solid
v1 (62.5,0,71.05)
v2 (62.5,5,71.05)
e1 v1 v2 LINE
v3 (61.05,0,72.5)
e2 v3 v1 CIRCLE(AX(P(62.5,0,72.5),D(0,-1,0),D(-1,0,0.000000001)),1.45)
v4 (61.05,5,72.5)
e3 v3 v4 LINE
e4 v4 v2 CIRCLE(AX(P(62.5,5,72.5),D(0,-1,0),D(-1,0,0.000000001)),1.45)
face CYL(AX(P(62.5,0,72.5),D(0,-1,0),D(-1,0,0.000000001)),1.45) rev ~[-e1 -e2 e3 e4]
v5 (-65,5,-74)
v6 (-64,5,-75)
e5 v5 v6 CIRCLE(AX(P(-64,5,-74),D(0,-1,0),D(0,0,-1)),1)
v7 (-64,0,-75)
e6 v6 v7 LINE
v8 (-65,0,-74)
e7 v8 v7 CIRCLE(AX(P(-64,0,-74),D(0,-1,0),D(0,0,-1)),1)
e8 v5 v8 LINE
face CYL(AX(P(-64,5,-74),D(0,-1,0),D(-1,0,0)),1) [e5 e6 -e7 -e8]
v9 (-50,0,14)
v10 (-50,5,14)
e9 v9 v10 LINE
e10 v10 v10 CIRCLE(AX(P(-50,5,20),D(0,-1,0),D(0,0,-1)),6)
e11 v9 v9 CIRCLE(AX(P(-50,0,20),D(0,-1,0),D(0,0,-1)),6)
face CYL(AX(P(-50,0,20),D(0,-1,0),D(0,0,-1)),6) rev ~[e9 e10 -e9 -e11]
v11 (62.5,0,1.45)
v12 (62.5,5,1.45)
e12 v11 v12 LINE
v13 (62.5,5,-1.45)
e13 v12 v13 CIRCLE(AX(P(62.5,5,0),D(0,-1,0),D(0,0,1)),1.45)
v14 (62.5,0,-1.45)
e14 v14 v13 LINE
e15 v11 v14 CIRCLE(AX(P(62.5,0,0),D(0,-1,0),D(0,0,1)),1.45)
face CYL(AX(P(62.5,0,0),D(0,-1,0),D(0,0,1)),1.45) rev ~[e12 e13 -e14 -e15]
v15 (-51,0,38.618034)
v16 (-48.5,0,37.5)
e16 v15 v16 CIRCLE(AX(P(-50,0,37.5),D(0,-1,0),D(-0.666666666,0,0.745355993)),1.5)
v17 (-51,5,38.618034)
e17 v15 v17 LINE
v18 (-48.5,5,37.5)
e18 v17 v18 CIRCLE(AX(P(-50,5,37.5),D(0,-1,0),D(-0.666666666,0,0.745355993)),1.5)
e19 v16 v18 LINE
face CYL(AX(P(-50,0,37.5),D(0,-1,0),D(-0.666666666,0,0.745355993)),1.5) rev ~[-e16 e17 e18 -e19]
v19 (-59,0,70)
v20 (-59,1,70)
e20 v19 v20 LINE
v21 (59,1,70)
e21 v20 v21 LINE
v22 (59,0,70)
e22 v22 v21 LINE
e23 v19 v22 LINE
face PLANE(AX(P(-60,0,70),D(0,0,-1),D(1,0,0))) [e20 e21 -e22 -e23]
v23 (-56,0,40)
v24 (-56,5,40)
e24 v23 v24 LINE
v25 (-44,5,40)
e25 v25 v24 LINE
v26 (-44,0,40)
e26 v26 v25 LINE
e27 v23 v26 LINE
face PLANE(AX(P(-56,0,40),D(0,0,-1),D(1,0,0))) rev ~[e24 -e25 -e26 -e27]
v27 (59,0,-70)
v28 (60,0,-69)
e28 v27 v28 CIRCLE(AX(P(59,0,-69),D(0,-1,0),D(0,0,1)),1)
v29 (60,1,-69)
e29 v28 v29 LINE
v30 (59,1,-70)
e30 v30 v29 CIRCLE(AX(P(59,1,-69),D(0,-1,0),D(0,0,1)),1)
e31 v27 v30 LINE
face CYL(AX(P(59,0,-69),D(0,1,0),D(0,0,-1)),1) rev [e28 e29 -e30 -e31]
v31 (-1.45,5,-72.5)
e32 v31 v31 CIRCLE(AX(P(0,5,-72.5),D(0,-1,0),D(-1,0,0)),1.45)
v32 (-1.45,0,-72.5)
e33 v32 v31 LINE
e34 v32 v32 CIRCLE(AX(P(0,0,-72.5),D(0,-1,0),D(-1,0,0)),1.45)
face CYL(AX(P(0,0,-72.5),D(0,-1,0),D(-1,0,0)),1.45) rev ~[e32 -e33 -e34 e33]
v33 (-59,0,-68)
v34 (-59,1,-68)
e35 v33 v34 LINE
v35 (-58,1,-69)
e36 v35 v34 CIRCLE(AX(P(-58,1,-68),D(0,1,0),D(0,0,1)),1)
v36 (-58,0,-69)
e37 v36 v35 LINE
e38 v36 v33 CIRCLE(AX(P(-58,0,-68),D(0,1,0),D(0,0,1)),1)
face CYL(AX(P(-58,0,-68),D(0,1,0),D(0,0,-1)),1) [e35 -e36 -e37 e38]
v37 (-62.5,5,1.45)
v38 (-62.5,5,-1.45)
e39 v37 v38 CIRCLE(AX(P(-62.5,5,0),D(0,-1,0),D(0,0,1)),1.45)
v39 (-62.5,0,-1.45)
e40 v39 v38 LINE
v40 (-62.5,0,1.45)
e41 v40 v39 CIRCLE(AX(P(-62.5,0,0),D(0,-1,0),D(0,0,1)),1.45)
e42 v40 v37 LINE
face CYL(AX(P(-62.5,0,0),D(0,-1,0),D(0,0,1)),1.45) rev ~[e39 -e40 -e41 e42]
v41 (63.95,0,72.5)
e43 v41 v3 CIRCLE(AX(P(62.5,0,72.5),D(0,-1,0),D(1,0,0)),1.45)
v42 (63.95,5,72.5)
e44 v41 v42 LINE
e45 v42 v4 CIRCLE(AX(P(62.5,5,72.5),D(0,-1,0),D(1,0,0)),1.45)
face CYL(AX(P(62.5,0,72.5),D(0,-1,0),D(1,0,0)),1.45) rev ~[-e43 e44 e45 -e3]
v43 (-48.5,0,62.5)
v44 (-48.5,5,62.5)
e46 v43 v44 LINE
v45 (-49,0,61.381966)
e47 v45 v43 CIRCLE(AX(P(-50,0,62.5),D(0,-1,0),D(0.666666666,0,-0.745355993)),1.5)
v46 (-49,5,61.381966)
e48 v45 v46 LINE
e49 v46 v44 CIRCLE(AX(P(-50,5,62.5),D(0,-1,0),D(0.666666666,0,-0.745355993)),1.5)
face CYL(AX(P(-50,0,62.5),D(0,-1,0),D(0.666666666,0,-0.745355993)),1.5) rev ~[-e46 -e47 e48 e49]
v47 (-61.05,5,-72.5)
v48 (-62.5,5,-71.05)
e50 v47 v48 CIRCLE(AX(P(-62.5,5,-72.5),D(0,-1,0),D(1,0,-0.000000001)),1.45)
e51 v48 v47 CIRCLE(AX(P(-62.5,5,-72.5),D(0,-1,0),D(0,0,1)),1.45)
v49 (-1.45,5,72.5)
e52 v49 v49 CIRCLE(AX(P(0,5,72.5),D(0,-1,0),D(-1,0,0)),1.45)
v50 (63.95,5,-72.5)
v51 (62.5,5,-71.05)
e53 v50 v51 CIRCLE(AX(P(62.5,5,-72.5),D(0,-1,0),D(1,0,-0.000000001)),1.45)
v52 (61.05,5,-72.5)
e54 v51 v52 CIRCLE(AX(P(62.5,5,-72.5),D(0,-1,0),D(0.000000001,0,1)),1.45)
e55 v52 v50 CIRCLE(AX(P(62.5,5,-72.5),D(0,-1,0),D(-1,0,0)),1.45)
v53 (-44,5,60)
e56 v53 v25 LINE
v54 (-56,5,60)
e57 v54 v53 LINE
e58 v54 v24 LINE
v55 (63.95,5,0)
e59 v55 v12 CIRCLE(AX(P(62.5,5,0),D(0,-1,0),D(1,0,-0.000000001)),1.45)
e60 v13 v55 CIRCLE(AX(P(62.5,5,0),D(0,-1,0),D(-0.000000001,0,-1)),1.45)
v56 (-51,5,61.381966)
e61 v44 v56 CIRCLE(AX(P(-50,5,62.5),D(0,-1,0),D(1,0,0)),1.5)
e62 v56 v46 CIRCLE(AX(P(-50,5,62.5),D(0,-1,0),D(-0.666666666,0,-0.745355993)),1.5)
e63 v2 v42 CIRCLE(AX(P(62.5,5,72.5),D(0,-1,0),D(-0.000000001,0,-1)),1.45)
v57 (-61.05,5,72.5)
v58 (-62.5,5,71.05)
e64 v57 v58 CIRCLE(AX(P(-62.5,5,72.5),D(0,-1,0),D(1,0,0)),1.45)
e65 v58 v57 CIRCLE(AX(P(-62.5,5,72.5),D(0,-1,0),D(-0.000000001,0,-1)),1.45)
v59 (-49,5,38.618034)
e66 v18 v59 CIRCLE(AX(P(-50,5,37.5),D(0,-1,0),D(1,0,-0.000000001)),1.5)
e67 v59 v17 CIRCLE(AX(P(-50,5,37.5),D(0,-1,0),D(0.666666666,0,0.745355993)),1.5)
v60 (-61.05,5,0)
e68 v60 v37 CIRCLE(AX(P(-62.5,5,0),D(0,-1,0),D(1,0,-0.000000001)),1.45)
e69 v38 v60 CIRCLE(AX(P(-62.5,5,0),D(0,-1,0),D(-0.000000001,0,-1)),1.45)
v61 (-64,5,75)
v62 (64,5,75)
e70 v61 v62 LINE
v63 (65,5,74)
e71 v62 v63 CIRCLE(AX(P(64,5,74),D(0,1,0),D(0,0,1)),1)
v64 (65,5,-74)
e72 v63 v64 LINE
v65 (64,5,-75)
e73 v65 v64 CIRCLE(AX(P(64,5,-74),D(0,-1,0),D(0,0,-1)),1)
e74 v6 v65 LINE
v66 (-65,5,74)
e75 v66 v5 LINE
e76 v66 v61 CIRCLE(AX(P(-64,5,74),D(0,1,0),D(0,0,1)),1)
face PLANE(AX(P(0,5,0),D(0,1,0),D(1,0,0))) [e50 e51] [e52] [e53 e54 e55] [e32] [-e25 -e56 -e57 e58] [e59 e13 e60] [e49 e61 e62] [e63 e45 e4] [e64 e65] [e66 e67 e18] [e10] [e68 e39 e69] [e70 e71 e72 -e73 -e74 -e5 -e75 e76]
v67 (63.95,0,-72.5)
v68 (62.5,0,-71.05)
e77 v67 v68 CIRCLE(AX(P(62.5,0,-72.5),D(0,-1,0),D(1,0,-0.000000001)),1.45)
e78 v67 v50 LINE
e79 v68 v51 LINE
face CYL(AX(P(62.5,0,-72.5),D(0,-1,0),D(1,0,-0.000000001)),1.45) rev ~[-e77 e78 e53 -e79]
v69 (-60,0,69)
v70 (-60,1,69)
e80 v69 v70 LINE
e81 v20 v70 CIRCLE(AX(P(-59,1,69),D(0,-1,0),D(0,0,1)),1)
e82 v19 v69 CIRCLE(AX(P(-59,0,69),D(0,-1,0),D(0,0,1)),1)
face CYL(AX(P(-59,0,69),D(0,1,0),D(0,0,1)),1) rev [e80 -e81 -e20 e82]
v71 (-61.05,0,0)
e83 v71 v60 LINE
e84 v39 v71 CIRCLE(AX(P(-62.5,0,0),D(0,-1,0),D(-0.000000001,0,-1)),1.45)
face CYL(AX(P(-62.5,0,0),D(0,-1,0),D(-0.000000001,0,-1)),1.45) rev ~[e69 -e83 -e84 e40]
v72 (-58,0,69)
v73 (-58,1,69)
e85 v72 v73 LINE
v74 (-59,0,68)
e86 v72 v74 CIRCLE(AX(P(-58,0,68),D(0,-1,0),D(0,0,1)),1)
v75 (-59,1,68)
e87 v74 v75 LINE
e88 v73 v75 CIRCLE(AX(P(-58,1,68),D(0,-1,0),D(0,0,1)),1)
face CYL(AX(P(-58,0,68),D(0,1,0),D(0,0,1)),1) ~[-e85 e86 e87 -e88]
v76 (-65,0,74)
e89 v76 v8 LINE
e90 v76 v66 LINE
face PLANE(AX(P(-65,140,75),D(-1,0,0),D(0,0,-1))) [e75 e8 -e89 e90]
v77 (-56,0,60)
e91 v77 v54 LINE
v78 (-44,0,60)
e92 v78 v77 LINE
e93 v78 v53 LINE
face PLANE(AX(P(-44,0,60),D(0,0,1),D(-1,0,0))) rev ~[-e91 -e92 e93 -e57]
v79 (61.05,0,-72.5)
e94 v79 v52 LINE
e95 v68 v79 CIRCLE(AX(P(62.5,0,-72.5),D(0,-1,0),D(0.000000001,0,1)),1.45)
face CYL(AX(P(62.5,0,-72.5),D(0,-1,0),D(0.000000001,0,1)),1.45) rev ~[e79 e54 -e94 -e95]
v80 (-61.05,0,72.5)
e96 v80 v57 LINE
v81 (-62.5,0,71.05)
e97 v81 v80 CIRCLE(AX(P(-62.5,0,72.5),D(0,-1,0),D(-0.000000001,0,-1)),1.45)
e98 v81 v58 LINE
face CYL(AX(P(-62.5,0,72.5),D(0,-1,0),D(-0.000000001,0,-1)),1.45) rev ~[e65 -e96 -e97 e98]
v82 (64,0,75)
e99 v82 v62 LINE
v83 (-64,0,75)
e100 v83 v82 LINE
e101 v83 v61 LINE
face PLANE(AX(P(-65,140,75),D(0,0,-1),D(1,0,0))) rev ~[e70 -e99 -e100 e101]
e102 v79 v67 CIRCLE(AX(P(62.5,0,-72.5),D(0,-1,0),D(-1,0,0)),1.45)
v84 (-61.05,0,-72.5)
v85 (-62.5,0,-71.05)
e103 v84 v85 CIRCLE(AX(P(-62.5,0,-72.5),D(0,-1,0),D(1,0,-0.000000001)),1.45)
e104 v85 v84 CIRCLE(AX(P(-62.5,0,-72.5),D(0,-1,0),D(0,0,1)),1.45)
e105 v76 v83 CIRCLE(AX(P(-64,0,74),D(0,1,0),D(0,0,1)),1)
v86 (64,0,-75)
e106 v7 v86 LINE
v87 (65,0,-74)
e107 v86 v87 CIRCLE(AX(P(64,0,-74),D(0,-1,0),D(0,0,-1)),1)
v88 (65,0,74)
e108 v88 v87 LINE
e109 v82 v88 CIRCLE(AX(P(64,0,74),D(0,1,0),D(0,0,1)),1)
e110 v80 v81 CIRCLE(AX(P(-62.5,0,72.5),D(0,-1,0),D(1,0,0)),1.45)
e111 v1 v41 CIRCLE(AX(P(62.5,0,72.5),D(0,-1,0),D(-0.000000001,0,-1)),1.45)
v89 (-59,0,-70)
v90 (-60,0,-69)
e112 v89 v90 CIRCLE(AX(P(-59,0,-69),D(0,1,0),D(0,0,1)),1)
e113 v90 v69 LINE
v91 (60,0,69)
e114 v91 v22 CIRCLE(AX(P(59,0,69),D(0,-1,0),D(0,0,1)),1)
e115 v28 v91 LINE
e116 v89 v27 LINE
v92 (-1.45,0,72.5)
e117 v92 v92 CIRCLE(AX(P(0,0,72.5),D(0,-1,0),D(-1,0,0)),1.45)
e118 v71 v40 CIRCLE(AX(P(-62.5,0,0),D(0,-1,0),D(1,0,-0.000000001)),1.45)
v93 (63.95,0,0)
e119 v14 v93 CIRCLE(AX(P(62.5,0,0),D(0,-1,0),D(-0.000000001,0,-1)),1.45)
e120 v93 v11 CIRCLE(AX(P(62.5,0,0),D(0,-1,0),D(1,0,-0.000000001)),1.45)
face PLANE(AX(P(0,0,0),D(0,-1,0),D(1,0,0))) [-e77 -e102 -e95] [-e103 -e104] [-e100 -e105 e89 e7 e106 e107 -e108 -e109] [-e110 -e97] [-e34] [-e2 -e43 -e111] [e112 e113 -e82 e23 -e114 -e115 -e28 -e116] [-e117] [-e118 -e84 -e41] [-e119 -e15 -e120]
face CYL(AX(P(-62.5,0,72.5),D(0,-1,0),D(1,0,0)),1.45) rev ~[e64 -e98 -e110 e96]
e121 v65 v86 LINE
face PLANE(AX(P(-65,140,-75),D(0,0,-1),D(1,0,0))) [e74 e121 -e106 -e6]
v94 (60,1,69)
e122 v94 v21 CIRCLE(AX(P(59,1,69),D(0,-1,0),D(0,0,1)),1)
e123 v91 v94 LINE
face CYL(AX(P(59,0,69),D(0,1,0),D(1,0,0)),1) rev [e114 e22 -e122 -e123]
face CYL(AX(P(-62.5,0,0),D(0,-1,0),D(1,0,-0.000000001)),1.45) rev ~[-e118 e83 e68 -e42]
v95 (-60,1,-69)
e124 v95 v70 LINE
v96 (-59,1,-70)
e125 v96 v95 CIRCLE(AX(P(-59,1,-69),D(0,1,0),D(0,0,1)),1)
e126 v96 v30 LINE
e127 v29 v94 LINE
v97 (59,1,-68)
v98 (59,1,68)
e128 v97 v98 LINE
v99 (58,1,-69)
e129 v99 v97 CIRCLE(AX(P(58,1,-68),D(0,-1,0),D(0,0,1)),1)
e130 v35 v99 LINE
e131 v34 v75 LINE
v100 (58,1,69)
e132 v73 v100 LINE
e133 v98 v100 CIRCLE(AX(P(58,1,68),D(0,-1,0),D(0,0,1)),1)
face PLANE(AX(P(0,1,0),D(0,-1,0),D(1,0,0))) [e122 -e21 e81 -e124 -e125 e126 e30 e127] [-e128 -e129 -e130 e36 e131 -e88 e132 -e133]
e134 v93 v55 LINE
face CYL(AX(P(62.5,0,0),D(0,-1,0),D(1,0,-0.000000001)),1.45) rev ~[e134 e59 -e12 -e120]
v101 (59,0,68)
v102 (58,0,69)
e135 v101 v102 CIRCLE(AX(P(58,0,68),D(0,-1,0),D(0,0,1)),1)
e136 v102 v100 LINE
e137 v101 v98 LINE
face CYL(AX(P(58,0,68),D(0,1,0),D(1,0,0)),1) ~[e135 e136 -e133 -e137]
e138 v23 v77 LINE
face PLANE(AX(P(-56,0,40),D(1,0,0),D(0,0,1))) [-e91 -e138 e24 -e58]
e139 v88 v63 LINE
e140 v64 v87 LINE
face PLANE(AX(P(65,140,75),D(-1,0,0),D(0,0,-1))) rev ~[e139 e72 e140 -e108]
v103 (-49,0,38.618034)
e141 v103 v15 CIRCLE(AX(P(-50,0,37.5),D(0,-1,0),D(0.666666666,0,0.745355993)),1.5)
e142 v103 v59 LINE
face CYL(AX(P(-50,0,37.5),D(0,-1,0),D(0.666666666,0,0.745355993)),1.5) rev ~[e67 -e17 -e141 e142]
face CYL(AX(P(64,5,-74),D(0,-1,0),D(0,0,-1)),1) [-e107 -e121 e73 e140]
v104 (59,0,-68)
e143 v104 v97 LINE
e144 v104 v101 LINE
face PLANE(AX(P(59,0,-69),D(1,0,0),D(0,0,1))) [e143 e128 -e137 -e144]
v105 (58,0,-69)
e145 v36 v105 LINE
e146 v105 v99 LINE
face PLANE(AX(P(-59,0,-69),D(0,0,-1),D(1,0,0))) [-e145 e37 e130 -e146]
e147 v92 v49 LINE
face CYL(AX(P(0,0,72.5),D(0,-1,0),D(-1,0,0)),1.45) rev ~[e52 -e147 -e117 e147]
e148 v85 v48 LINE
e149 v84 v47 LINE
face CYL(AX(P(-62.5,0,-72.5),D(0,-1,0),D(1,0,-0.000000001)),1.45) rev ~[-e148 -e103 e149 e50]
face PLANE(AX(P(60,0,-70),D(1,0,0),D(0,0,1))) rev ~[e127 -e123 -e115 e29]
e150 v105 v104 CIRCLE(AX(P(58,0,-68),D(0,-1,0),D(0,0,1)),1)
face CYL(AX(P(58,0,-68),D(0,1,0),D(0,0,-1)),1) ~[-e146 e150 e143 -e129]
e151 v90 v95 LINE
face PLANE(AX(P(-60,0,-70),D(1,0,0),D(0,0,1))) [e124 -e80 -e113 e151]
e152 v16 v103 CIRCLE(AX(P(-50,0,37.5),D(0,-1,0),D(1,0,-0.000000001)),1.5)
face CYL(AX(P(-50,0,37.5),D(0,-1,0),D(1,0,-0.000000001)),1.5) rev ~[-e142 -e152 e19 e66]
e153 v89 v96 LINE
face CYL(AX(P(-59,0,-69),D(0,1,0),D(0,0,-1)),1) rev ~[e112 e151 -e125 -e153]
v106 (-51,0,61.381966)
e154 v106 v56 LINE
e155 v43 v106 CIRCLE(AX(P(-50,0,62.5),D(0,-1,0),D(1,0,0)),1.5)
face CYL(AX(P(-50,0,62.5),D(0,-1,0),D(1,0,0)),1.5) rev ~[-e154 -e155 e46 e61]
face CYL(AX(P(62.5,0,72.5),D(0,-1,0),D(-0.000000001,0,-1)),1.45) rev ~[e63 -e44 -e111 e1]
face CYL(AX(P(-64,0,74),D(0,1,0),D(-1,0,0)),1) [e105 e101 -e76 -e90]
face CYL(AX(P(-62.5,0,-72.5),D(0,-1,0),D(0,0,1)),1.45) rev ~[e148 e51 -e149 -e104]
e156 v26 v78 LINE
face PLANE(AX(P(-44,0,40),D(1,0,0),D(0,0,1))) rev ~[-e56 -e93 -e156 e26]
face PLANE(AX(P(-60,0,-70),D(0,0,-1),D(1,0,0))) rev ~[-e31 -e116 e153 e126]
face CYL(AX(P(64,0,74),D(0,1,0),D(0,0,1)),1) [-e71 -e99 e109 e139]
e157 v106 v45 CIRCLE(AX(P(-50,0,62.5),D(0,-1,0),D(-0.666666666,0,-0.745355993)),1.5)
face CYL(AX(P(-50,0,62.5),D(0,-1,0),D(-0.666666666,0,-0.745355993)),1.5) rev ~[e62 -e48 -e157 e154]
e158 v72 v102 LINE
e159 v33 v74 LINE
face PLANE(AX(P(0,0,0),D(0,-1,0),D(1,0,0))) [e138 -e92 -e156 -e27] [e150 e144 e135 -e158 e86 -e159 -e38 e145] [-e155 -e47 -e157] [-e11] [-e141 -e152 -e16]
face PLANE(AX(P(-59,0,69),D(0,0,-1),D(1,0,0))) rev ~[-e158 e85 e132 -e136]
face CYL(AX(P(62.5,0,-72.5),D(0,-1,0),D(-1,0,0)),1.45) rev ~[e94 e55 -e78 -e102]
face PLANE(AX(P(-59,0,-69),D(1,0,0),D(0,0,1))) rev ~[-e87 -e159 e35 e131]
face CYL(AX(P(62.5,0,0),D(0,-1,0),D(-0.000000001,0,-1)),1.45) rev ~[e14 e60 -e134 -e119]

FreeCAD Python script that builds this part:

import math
import FreeCAD as App
import Part
import Sketcher

V = App.Vector
Q = App.Units.Quantity


def edges_at(feature, points):
    """Names of the edges that pass closest to the given points."""
    edges = feature.Shape.Edges
    near = lambda p: min(range(len(edges)), key=lambda i: edges[i].distToShape(Part.Vertex(*p))[0])
    return sorted({f"Edge{near(p) + 1}" for p in points})

doc = App.newDocument("Part")
params = doc.addObject("Spreadsheet::Sheet", "Params")
for row, (alias, value) in enumerate([
    ("sketch1_width", "130 mm"),
    ("sketch1_width2", "120 mm"),
    ("sketch1_height", "150 mm"),
    ("sketch1_height2", "140 mm"),
    ("pad1_length", "140 mm"),
    ("sketch2_width", "130 mm"),
    ("sketch2_height", "150 mm"),
    ("pad2_length", "5 mm"),
    ("sketch3_diameter", "2.9 mm"),
    ("pocket1_length", "12 mm"),
    ("sketch4_width", "130 mm"),
    ("sketch4_height", "150 mm"),
    ("pocket2_length", "140 mm"),
    ("sketch5_width", "120 mm"),
    ("sketch5_height", "140 mm"),
    ("pad3_length", "5 mm"),
    ("fillet_radius", "1 mm"),
    ("sketch6_width", "120 mm"),
    ("sketch6_width2", "118 mm"),
    ("sketch6_height", "140 mm"),
    ("sketch6_height2", "138 mm"),
    ("pocket3_length", "1 mm"),
    ("fillet2_radius", "1 mm"),
    ("sketch7_radius", "1.5 mm"),
    ("sketch7_width", "12 mm"),
    ("sketch7_height", "20 mm"),
    ("pocket4_length", "10 mm"),
    ("sketch8_diameter", "12 mm"),
    ("pocket5_length", "10 mm"),
], start=1):
    params.set(f"A{row}", alias)
    params.set(f"B{row}", "=" + value)
    params.setAlias(f"B{row}", alias)

body = doc.addObject("PartDesign::Body", "Body")

sketch1 = body.newObject("Sketcher::SketchObject", "Sketch")
sketch1.AttachmentSupport = (doc.getObject("XZ_Plane"), [""])
sketch1.MapMode = "FlatFace"
sketch1.addGeometry(Part.LineSegment(V(-65, -75, 0), V(-65, 75, 0)), False)
sketch1.addGeometry(Part.LineSegment(V(-65, 75, 0), V(65, 75, 0)), False)
sketch1.addGeometry(Part.LineSegment(V(65, 75, 0), V(65, -75, 0)), False)
sketch1.addGeometry(Part.LineSegment(V(65, -75, 0), V(-65, -75, 0)), False)
sketch1.addGeometry(Part.LineSegment(V(60, 70, 0), V(-60, 70, 0)), False)
sketch1.addGeometry(Part.LineSegment(V(-60, 70, 0), V(-60, -70, 0)), False)
sketch1.addGeometry(Part.LineSegment(V(-60, -70, 0), V(60, -70, 0)), False)
sketch1.addGeometry(Part.LineSegment(V(60, -70, 0), V(60, 70, 0)), False)
sketch1.addConstraint(Sketcher.Constraint("Coincident", 0, 2, 1, 1))
sketch1.addConstraint(Sketcher.Constraint("Coincident", 1, 2, 2, 1))
sketch1.addConstraint(Sketcher.Constraint("Coincident", 2, 2, 3, 1))
sketch1.addConstraint(Sketcher.Constraint("Coincident", 3, 2, 0, 1))
sketch1.addConstraint(Sketcher.Constraint("Coincident", 4, 2, 5, 1))
sketch1.addConstraint(Sketcher.Constraint("Coincident", 5, 2, 6, 1))
sketch1.addConstraint(Sketcher.Constraint("Coincident", 6, 2, 7, 1))
sketch1.addConstraint(Sketcher.Constraint("Coincident", 7, 2, 4, 1))
sketch1.addConstraint(Sketcher.Constraint("Vertical", 0))
sketch1.addConstraint(Sketcher.Constraint("Horizontal", 1))
sketch1.addConstraint(Sketcher.Constraint("Vertical", 2))
sketch1.addConstraint(Sketcher.Constraint("Horizontal", 3))
sketch1.addConstraint(Sketcher.Constraint("Horizontal", 4))
sketch1.addConstraint(Sketcher.Constraint("Vertical", 5))
sketch1.addConstraint(Sketcher.Constraint("Horizontal", 6))
sketch1.addConstraint(Sketcher.Constraint("Vertical", 7))
sketch1.addConstraint(Sketcher.Constraint("Symmetric", 0, 2, 2, 2, -1, 1))
sketch1.addConstraint(Sketcher.Constraint("Symmetric", 4, 2, 6, 2, -1, 1))
sketch1.addConstraint(Sketcher.Constraint("DistanceX", 1, 1, 1, 2, Q("130 mm")))
sketch1.addConstraint(Sketcher.Constraint("DistanceX", 4, 2, 4, 1, Q("120 mm")))
sketch1.addConstraint(Sketcher.Constraint("DistanceY", 0, 1, 0, 2, Q("150 mm")))
sketch1.addConstraint(Sketcher.Constraint("DistanceY", 5, 2, 5, 1, Q("140 mm")))
sketch1.setExpression("Constraints[18]", "Params.sketch1_width")
sketch1.setExpression("Constraints[19]", "Params.sketch1_width2")
sketch1.setExpression("Constraints[20]", "Params.sketch1_height")
sketch1.setExpression("Constraints[21]", "Params.sketch1_height2")
pad1 = body.newObject("PartDesign::Pad", "Pad")
pad1.Profile = sketch1
pad1.setExpression("Length", "Params.pad1_length")
pad1.Reversed = True

sketch2 = body.newObject("Sketcher::SketchObject", "Sketch001")
sketch2.AttachmentSupport = (doc.getObject("XZ_Plane"), [""])
sketch2.MapMode = "FlatFace"
sketch2.AttachmentOffset = App.Placement(V(0, 0, -140), App.Rotation())
sketch2.addGeometry(Part.LineSegment(V(-65, -75, 0), V(-65, 75, 0)), False)
sketch2.addGeometry(Part.LineSegment(V(-65, 75, 0), V(65, 75, 0)), False)
sketch2.addGeometry(Part.LineSegment(V(65, 75, 0), V(65, -75, 0)), False)
sketch2.addGeometry(Part.LineSegment(V(65, -75, 0), V(-65, -75, 0)), False)
sketch2.addConstraint(Sketcher.Constraint("Coincident", 0, 2, 1, 1))
sketch2.addConstraint(Sketcher.Constraint("Coincident", 1, 2, 2, 1))
sketch2.addConstraint(Sketcher.Constraint("Coincident", 2, 2, 3, 1))
sketch2.addConstraint(Sketcher.Constraint("Coincident", 3, 2, 0, 1))
sketch2.addConstraint(Sketcher.Constraint("Vertical", 0))
sketch2.addConstraint(Sketcher.Constraint("Horizontal", 1))
sketch2.addConstraint(Sketcher.Constraint("Vertical", 2))
sketch2.addConstraint(Sketcher.Constraint("Horizontal", 3))
sketch2.addConstraint(Sketcher.Constraint("Symmetric", 0, 2, 2, 2, -1, 1))
sketch2.addConstraint(Sketcher.Constraint("DistanceX", 1, 1, 1, 2, Q("130 mm")))
sketch2.addConstraint(Sketcher.Constraint("DistanceY", 0, 1, 0, 2, Q("150 mm")))
sketch2.setExpression("Constraints[9]", "Params.sketch2_width")
sketch2.setExpression("Constraints[10]", "Params.sketch2_height")
pad2 = body.newObject("PartDesign::Pad", "Pad001")
pad2.Profile = sketch2
pad2.setExpression("Length", "Params.pad2_length")
pad2.Reversed = True

sketch3 = body.newObject("Sketcher::SketchObject", "Sketch002")
sketch3.AttachmentSupport = (doc.getObject("XZ_Plane"), [""])
sketch3.MapMode = "FlatFace"
sketch3.addGeometry(Part.Circle(V(0, -72.5, 0), V(0, 0, 1), 1.4), False)
sketch3.addGeometry(Part.ArcOfCircle(Part.Circle(V(62.5, -72.5, 0), V(0, 0, 1), 1.4), math.radians(0), math.radians(90)), False)
sketch3.addGeometry(Part.ArcOfCircle(Part.Circle(V(62.5, -72.5, 0), V(0, 0, 1), 1.4), math.radians(90), math.radians(180)), False)
sketch3.addGeometry(Part.ArcOfCircle(Part.Circle(V(62.5, -72.5, 0), V(0, 0, 1), 1.4), math.radians(180), math.radians(360)), False)
sketch3.addGeometry(Part.ArcOfCircle(Part.Circle(V(62.5, 0, 0), V(0, 0, 1), 1.4), math.radians(0), math.radians(90)), False)
sketch3.addGeometry(Part.ArcOfCircle(Part.Circle(V(62.5, 0, 0), V(0, 0, 1), 1.4), math.radians(90), math.radians(270)), False)
sketch3.addGeometry(Part.ArcOfCircle(Part.Circle(V(62.5, 0, 0), V(0, 0, 1), 1.4), math.radians(-90), math.radians(0)), False)
sketch3.addGeometry(Part.ArcOfCircle(Part.Circle(V(62.5, 72.5, 0), V(0, 0, 1), 1.4), math.radians(0), math.radians(180)), False)
sketch3.addGeometry(Part.ArcOfCircle(Part.Circle(V(62.5, 72.5, 0), V(0, 0, 1), 1.4), math.radians(180), math.radians(270)), False)
sketch3.addGeometry(Part.ArcOfCircle(Part.Circle(V(62.5, 72.5, 0), V(0, 0, 1), 1.4), math.radians(-90), math.radians(0)), False)
sketch3.addGeometry(Part.Circle(V(0, 72.5, 0), V(0, 0, 1), 1.4), False)
sketch3.addGeometry(Part.ArcOfCircle(Part.Circle(V(-62.5, 72.5, 0), V(0, 0, 1), 1.4), math.radians(0), math.radians(270)), False)
sketch3.addGeometry(Part.ArcOfCircle(Part.Circle(V(-62.5, 72.5, 0), V(0, 0, 1), 1.4), math.radians(-90), math.radians(0)), False)
sketch3.addGeometry(Part.ArcOfCircle(Part.Circle(V(-62.5, 0, 0), V(0, 0, 1), 1.4), math.radians(0), math.radians(90)), False)
sketch3.addGeometry(Part.ArcOfCircle(Part.Circle(V(-62.5, 0, 0), V(0, 0, 1), 1.4), math.radians(90), math.radians(270)), False)
sketch3.addGeometry(Part.ArcOfCircle(Part.Circle(V(-62.5, 0, 0), V(0, 0, 1), 1.4), math.radians(-90), math.radians(0)), False)
sketch3.addGeometry(Part.ArcOfCircle(Part.Circle(V(-62.5, -72.5, 0), V(0, 0, 1), 1.4), math.radians(0), math.radians(90)), False)
sketch3.addGeometry(Part.ArcOfCircle(Part.Circle(V(-62.5, -72.5, 0), V(0, 0, 1), 1.4), math.radians(90), math.radians(360)), False)
sketch3.addConstraint(Sketcher.Constraint("Tangent", 1, 2, 2, 1))
sketch3.addConstraint(Sketcher.Constraint("Tangent", 2, 2, 3, 1))
sketch3.addConstraint(Sketcher.Constraint("Tangent", 3, 2, 1, 1))
sketch3.addConstraint(Sketcher.Constraint("Tangent", 4, 2, 5, 1))
sketch3.addConstraint(Sketcher.Constraint("Tangent", 5, 2, 6, 1))
sketch3.addConstraint(Sketcher.Constraint("Tangent", 6, 2, 4, 1))
sketch3.addConstraint(Sketcher.Constraint("Tangent", 7, 2, 8, 1))
sketch3.addConstraint(Sketcher.Constraint("Tangent", 8, 2, 9, 1))
sketch3.addConstraint(Sketcher.Constraint("Tangent", 9, 2, 7, 1))
sketch3.addConstraint(Sketcher.Constraint("Tangent", 11, 1, 12, 2))
sketch3.addConstraint(Sketcher.Constraint("Coincident", 12, 1, 11, 2))
sketch3.addConstraint(Sketcher.Constraint("Tangent", 13, 2, 14, 1))
sketch3.addConstraint(Sketcher.Constraint("Tangent", 14, 2, 15, 1))
sketch3.addConstraint(Sketcher.Constraint("Tangent", 15, 2, 13, 1))
sketch3.addConstraint(Sketcher.Constraint("Tangent", 16, 1, 17, 2))
sketch3.addConstraint(Sketcher.Constraint("Coincident", 17, 1, 16, 2))
sketch3.addConstraint(Sketcher.Constraint("Equal", 0, 1))
sketch3.addConstraint(Sketcher.Constraint("Equal", 3, 4))
sketch3.addConstraint(Sketcher.Constraint("Equal", 6, 7))
sketch3.addConstraint(Sketcher.Constraint("Equal", 9, 10))
sketch3.addConstraint(Sketcher.Constraint("Equal", 10, 11))
sketch3.addConstraint(Sketcher.Constraint("Equal", 12, 13))
sketch3.addConstraint(Sketcher.Constraint("Equal", 15, 16))
sketch3.addConstraint(Sketcher.Constraint("Symmetric", 0, 3, 10, 3, -1, 1))
sketch3.addConstraint(Sketcher.Constraint("Symmetric", 1, 3, 11, 3, -1, 1))
sketch3.addConstraint(Sketcher.Constraint("Symmetric", 4, 3, 13, 3, -1, 1))
sketch3.addConstraint(Sketcher.Constraint("Symmetric", 7, 3, 16, 3, -1, 1))
sketch3.addConstraint(Sketcher.Constraint("Symmetric", 7, 3, 11, 3, -2))
sketch3.addConstraint(Sketcher.Constraint("Symmetric", 4, 2, 13, 2, -2))
sketch3.addConstraint(Sketcher.Constraint("PointOnObject", 0, 3, -2))
sketch3.addConstraint(Sketcher.Constraint("PointOnObject", 6, 2, -1))
sketch3.addConstraint(Sketcher.Constraint("PointOnObject", 15, 2, -1))
sketch3.addConstraint(Sketcher.Constraint("Horizontal", 0, 3, 1, 3))
sketch3.addConstraint(Sketcher.Constraint("Horizontal", 17, 3, 2, 2))
sketch3.addConstraint(Sketcher.Constraint("Horizontal", 2, 2, 3, 2))
sketch3.addConstraint(Sketcher.Constraint("Horizontal", 12, 3, 7, 2))
sketch3.addConstraint(Sketcher.Constraint("Horizontal", 7, 2, 9, 2))
sketch3.addConstraint(Sketcher.Constraint("Horizontal", 9, 2, 11, 1))
sketch3.addConstraint(Sketcher.Constraint("Horizontal", 3, 2, 16, 1))
sketch3.addConstraint(Sketcher.Constraint("Vertical", 3, 3, 4, 3))
sketch3.addConstraint(Sketcher.Constraint("Vertical", 9, 3, 1, 2))
sketch3.addConstraint(Sketcher.Constraint("Vertical", 1, 2, 4, 2))
sketch3.addConstraint(Sketcher.Constraint("Vertical", 4, 2, 5, 2))
sketch3.addConstraint(Sketcher.Constraint("Vertical", 5, 2, 8, 2))
sketch3.addConstraint(Sketcher.Constraint("Vertical", 17, 3, 12, 1))
sketch3.addConstraint(Sketcher.Constraint("Vertical", 13, 2, 14, 2))
sketch3.addConstraint(Sketcher.Constraint("Vertical", 14, 2, 17, 1))
sketch3.addConstraint(Sketcher.Constraint("Diameter", 0, Q("2.9 mm")))
sketch3.addConstraint(Sketcher.Constraint("DistanceY", 1, 3, 7, 3, Q("145 mm")))
sketch3.addConstraint(Sketcher.Constraint("DistanceX", 11, 3, 8, 3, Q("125 mm")))
sketch3.setExpression("Constraints[47]", "Params.sketch3_diameter")
pocket1 = body.newObject("PartDesign::Pocket", "Pocket")
pocket1.Profile = sketch3
pocket1.setExpression("Length", "Params.pocket1_length")

sketch4 = body.newObject("Sketcher::SketchObject", "Sketch003")
sketch4.AttachmentSupport = (doc.getObject("XZ_Plane"), [""])
sketch4.MapMode = "FlatFace"
sketch4.AttachmentOffset = App.Placement(V(0, 0, -145), App.Rotation())
sketch4.addGeometry(Part.LineSegment(V(-65, -75, 0), V(-65, 75, 0)), False)
sketch4.addGeometry(Part.LineSegment(V(-65, 75, 0), V(65, 75, 0)), False)
sketch4.addGeometry(Part.LineSegment(V(65, 75, 0), V(65, -75, 0)), False)
sketch4.addGeometry(Part.LineSegment(V(65, -75, 0), V(-65, -75, 0)), False)
sketch4.addConstraint(Sketcher.Constraint("Coincident", 0, 2, 1, 1))
sketch4.addConstraint(Sketcher.Constraint("Coincident", 1, 2, 2, 1))
sketch4.addConstraint(Sketcher.Constraint("Coincident", 2, 2, 3, 1))
sketch4.addConstraint(Sketcher.Constraint("Coincident", 3, 2, 0, 1))
sketch4.addConstraint(Sketcher.Constraint("Vertical", 0))
sketch4.addConstraint(Sketcher.Constraint("Horizontal", 1))
sketch4.addConstraint(Sketcher.Constraint("Vertical", 2))
sketch4.addConstraint(Sketcher.Constraint("Horizontal", 3))
sketch4.addConstraint(Sketcher.Constraint("Symmetric", 0, 2, 2, 2, -1, 1))
sketch4.addConstraint(Sketcher.Constraint("DistanceX", 1, 1, 1, 2, Q("130 mm")))
sketch4.addConstraint(Sketcher.Constraint("DistanceY", 0, 1, 0, 2, Q("150 mm")))
sketch4.setExpression("Constraints[9]", "Params.sketch4_width")
sketch4.setExpression("Constraints[10]", "Params.sketch4_height")
pocket2 = body.newObject("PartDesign::Pocket", "Pocket001")
pocket2.Profile = sketch4
pocket2.setExpression("Length", "Params.pocket2_length")
pocket2.Reversed = True

sketch5 = body.newObject("Sketcher::SketchObject", "Sketch004")
sketch5.AttachmentSupport = (doc.getObject("XZ_Plane"), [""])
sketch5.MapMode = "FlatFace"
sketch5.addGeometry(Part.LineSegment(V(-60, 70, 0), V(-60, -70, 0)), False)
sketch5.addGeometry(Part.LineSegment(V(-60, -70, 0), V(60, -70, 0)), False)
sketch5.addGeometry(Part.LineSegment(V(60, -70, 0), V(60, 70, 0)), False)
sketch5.addGeometry(Part.LineSegment(V(60, 70, 0), V(-60, 70, 0)), False)
sketch5.addConstraint(Sketcher.Constraint("Coincident", 0, 2, 1, 1))
sketch5.addConstraint(Sketcher.Constraint("Coincident", 1, 2, 2, 1))
sketch5.addConstraint(Sketcher.Constraint("Coincident", 2, 2, 3, 1))
sketch5.addConstraint(Sketcher.Constraint("Coincident", 3, 2, 0, 1))
sketch5.addConstraint(Sketcher.Constraint("Vertical", 0))
sketch5.addConstraint(Sketcher.Constraint("Horizontal", 1))
sketch5.addConstraint(Sketcher.Constraint("Vertical", 2))
sketch5.addConstraint(Sketcher.Constraint("Horizontal", 3))
sketch5.addConstraint(Sketcher.Constraint("Symmetric", 0, 2, 2, 2, -1, 1))
sketch5.addConstraint(Sketcher.Constraint("DistanceX", 1, 1, 1, 2, Q("120 mm")))
sketch5.addConstraint(Sketcher.Constraint("DistanceY", 0, 2, 0, 1, Q("140 mm")))
sketch5.setExpression("Constraints[9]", "Params.sketch5_width")
sketch5.setExpression("Constraints[10]", "Params.sketch5_height")
pad3 = body.newObject("PartDesign::Pad", "Pad002")
pad3.Profile = sketch5
pad3.setExpression("Length", "Params.pad3_length")
pad3.Reversed = True
doc.recompute()

fillet = body.newObject("PartDesign::Fillet", "Fillet")
fillet.Base = (pad3, edges_at(pad3, [
    (-65, 2.5, -75),
    (65, 2.5, -75),
    (65, 2.5, 75),
    (-65, 2.5, 75),
]))
fillet.setExpression("Radius", "Params.fillet_radius")

sketch6 = body.newObject("Sketcher::SketchObject", "Sketch005")
sketch6.AttachmentSupport = (doc.getObject("XZ_Plane"), [""])
sketch6.MapMode = "FlatFace"
sketch6.addGeometry(Part.LineSegment(V(-60, 70, 0), V(-60, -70, 0)), False)
sketch6.addGeometry(Part.LineSegment(V(-60, -70, 0), V(60, -70, 0)), False)
sketch6.addGeometry(Part.LineSegment(V(60, -70, 0), V(60, 70, 0)), False)
sketch6.addGeometry(Part.LineSegment(V(60, 70, 0), V(-60, 70, 0)), False)
sketch6.addGeometry(Part.LineSegment(V(59, -69, 0), V(-59, -69, 0)), False)
sketch6.addGeometry(Part.LineSegment(V(-59, -69, 0), V(-59, 69, 0)), False)
sketch6.addGeometry(Part.LineSegment(V(-59, 69, 0), V(59, 69, 0)), False)
sketch6.addGeometry(Part.LineSegment(V(59, 69, 0), V(59, -69, 0)), False)
sketch6.addConstraint(Sketcher.Constraint("Coincident", 0, 2, 1, 1))
sketch6.addConstraint(Sketcher.Constraint("Coincident", 1, 2, 2, 1))
sketch6.addConstraint(Sketcher.Constraint("Coincident", 2, 2, 3, 1))
sketch6.addConstraint(Sketcher.Constraint("Coincident", 3, 2, 0, 1))
sketch6.addConstraint(Sketcher.Constraint("Coincident", 4, 2, 5, 1))
sketch6.addConstraint(Sketcher.Constraint("Coincident", 5, 2, 6, 1))
sketch6.addConstraint(Sketcher.Constraint("Coincident", 6, 2, 7, 1))
sketch6.addConstraint(Sketcher.Constraint("Coincident", 7, 2, 4, 1))
sketch6.addConstraint(Sketcher.Constraint("Vertical", 0))
sketch6.addConstraint(Sketcher.Constraint("Horizontal", 1))
sketch6.addConstraint(Sketcher.Constraint("Vertical", 2))
sketch6.addConstraint(Sketcher.Constraint("Horizontal", 3))
sketch6.addConstraint(Sketcher.Constraint("Horizontal", 4))
sketch6.addConstraint(Sketcher.Constraint("Vertical", 5))
sketch6.addConstraint(Sketcher.Constraint("Horizontal", 6))
sketch6.addConstraint(Sketcher.Constraint("Vertical", 7))
sketch6.addConstraint(Sketcher.Constraint("Symmetric", 0, 2, 2, 2, -1, 1))
sketch6.addConstraint(Sketcher.Constraint("Symmetric", 4, 2, 6, 2, -1, 1))
sketch6.addConstraint(Sketcher.Constraint("DistanceX", 1, 1, 1, 2, Q("120 mm")))
sketch6.addConstraint(Sketcher.Constraint("DistanceX", 4, 2, 4, 1, Q("118 mm")))
sketch6.addConstraint(Sketcher.Constraint("DistanceY", 0, 2, 0, 1, Q("140 mm")))
sketch6.addConstraint(Sketcher.Constraint("DistanceY", 5, 1, 5, 2, Q("138 mm")))
sketch6.setExpression("Constraints[18]", "Params.sketch6_width")
sketch6.setExpression("Constraints[19]", "Params.sketch6_width2")
sketch6.setExpression("Constraints[20]", "Params.sketch6_height")
sketch6.setExpression("Constraints[21]", "Params.sketch6_height2")
pocket3 = body.newObject("PartDesign::Pocket", "Pocket002")
pocket3.Profile = sketch6
pocket3.setExpression("Length", "Params.pocket3_length")
doc.recompute()

fillet2 = body.newObject("PartDesign::Fillet", "Fillet001")
fillet2.Base = (pocket3, edges_at(pocket3, [
    (60, 0.5, -70),
    (-60, 0.5, -70),
    (-60, 0.5, 70),
    (59, 0.5, -69),
    (59, 0.5, 69),
    (-59, 0.5, 69),
    (-59, 0.5, -69),
    (60, 0.5, 70),
]))
fillet2.setExpression("Radius", "Params.fillet2_radius")

sketch7 = body.newObject("Sketcher::SketchObject", "Sketch006")
sketch7.AttachmentSupport = (doc.getObject("XZ_Plane"), [""])
sketch7.MapMode = "FlatFace"
sketch7.addGeometry(Part.LineSegment(V(-56, 60, 0), V(-56, 40, 0)), False)
sketch7.addGeometry(Part.LineSegment(V(-56, 40, 0), V(-44, 40, 0)), False)
sketch7.addGeometry(Part.LineSegment(V(-44, 40, 0), V(-44, 60, 0)), False)
sketch7.addGeometry(Part.LineSegment(V(-44, 60, 0), V(-56, 60, 0)), False)
sketch7.addGeometry(Part.ArcOfCircle(Part.Circle(V(-50, 62.5, 0), V(0, 0, 1), 1.5), math.radians(-48), math.radians(0)), False)
sketch7.addGeometry(Part.ArcOfCircle(Part.Circle(V(-50, 62.5, 0), V(0, 0, 1), 1.5), math.radians(0), math.radians(228)), False)
sketch7.addGeometry(Part.ArcOfCircle(Part.Circle(V(-50, 62.5, 0), V(0, 0, 1), 1.5), math.radians(-132), math.radians(-48)), False)
sketch7.addGeometry(Part.ArcOfCircle(Part.Circle(V(-50, 37.5, 0), V(0, 0, 1), 1.5), math.radians(48), math.radians(132)), False)
sketch7.addGeometry(Part.ArcOfCircle(Part.Circle(V(-50, 37.5, 0), V(0, 0, 1), 1.5), math.radians(132), math.radians(360)), False)
sketch7.addGeometry(Part.ArcOfCircle(Part.Circle(V(-50, 37.5, 0), V(0, 0, 1), 1.5), math.radians(0), math.radians(48)), False)
sketch7.addConstraint(Sketcher.Constraint("Coincident", 0, 2, 1, 1))
sketch7.addConstraint(Sketcher.Constraint("Coincident", 1, 2, 2, 1))
sketch7.addConstraint(Sketcher.Constraint("Coincident", 2, 2, 3, 1))
sketch7.addConstraint(Sketcher.Constraint("Coincident", 3, 2, 0, 1))
sketch7.addConstraint(Sketcher.Constraint("Tangent", 4, 2, 5, 1))
sketch7.addConstraint(Sketcher.Constraint("Tangent", 5, 2, 6, 1))
sketch7.addConstraint(Sketcher.Constraint("Tangent", 6, 2, 4, 1))
sketch7.addConstraint(Sketcher.Constraint("Tangent", 7, 2, 8, 1))
sketch7.addConstraint(Sketcher.Constraint("Tangent", 8, 2, 9, 1))
sketch7.addConstraint(Sketcher.Constraint("Tangent", 9, 2, 7, 1))
sketch7.addConstraint(Sketcher.Constraint("Vertical", 0))
sketch7.addConstraint(Sketcher.Constraint("Horizontal", 1))
sketch7.addConstraint(Sketcher.Constraint("Vertical", 2))
sketch7.addConstraint(Sketcher.Constraint("Horizontal", 3))
sketch7.addConstraint(Sketcher.Constraint("Equal", 6, 7))
sketch7.addConstraint(Sketcher.Constraint("Horizontal", 6, 3, 4, 2))
sketch7.addConstraint(Sketcher.Constraint("Horizontal", 5, 2, 6, 2))
sketch7.addConstraint(Sketcher.Constraint("Horizontal", 9, 3, 8, 2))
sketch7.addConstraint(Sketcher.Constraint("Horizontal", 7, 2, 9, 2))
sketch7.addConstraint(Sketcher.Constraint("Vertical", 6, 3, 7, 3))
sketch7.addConstraint(Sketcher.Constraint("Vertical", 5, 2, 7, 2))
sketch7.addConstraint(Sketcher.Constraint("Radius", 4, Q("1.5 mm")))
sketch7.addConstraint(Sketcher.Constraint("DistanceX", 1, 1, 1, 2, Q("12 mm")))
sketch7.addConstraint(Sketcher.Constraint("DistanceY", 0, 2, 0, 1, Q("20 mm")))
sketch7.addConstraint(Sketcher.Constraint("DistanceX", 4, 3, -1, 1, Q("50 mm")))
sketch7.addConstraint(Sketcher.Constraint("DistanceX", 0, 2, -1, 1, Q("56 mm")))
sketch7.addConstraint(Sketcher.Constraint("DistanceY", -1, 1, 0, 2, Q("40 mm")))
sketch7.addConstraint(Sketcher.Constraint("DistanceX", 5, 2, -1, 1, Q("51 mm")))
sketch7.addConstraint(Sketcher.Constraint("DistanceY", 7, 3, 4, 3, Q("25 mm")))
sketch7.addConstraint(Sketcher.Constraint("DistanceY", -1, 1, 4, 3, Q("62.5 mm")))
sketch7.setExpression("Constraints[21]", "Params.sketch7_radius")
sketch7.setExpression("Constraints[22]", "Params.sketch7_width")
sketch7.setExpression("Constraints[23]", "Params.sketch7_height")
pocket4 = body.newObject("PartDesign::Pocket", "Pocket003")
pocket4.Profile = sketch7
pocket4.setExpression("Length", "Params.pocket4_length")

sketch8 = body.newObject("Sketcher::SketchObject", "Sketch007")
sketch8.AttachmentSupport = (doc.getObject("XZ_Plane"), [""])
sketch8.MapMode = "FlatFace"
sketch8.addGeometry(Part.Circle(V(-50, 20, 0), V(0, 0, 1), 6), False)
sketch8.addConstraint(Sketcher.Constraint("Diameter", 0, Q("12 mm")))
sketch8.addConstraint(Sketcher.Constraint("DistanceX", 0, 3, -1, 1, Q("50 mm")))
sketch8.addConstraint(Sketcher.Constraint("DistanceY", -1, 1, 0, 3, Q("20 mm")))
sketch8.setExpression("Constraints[0]", "Params.sketch8_diameter")
pocket5 = body.newObject("PartDesign::Pocket", "Pocket004")
pocket5.Profile = sketch8
pocket5.setExpression("Length", "Params.pocket5_length")

doc.recompute()
